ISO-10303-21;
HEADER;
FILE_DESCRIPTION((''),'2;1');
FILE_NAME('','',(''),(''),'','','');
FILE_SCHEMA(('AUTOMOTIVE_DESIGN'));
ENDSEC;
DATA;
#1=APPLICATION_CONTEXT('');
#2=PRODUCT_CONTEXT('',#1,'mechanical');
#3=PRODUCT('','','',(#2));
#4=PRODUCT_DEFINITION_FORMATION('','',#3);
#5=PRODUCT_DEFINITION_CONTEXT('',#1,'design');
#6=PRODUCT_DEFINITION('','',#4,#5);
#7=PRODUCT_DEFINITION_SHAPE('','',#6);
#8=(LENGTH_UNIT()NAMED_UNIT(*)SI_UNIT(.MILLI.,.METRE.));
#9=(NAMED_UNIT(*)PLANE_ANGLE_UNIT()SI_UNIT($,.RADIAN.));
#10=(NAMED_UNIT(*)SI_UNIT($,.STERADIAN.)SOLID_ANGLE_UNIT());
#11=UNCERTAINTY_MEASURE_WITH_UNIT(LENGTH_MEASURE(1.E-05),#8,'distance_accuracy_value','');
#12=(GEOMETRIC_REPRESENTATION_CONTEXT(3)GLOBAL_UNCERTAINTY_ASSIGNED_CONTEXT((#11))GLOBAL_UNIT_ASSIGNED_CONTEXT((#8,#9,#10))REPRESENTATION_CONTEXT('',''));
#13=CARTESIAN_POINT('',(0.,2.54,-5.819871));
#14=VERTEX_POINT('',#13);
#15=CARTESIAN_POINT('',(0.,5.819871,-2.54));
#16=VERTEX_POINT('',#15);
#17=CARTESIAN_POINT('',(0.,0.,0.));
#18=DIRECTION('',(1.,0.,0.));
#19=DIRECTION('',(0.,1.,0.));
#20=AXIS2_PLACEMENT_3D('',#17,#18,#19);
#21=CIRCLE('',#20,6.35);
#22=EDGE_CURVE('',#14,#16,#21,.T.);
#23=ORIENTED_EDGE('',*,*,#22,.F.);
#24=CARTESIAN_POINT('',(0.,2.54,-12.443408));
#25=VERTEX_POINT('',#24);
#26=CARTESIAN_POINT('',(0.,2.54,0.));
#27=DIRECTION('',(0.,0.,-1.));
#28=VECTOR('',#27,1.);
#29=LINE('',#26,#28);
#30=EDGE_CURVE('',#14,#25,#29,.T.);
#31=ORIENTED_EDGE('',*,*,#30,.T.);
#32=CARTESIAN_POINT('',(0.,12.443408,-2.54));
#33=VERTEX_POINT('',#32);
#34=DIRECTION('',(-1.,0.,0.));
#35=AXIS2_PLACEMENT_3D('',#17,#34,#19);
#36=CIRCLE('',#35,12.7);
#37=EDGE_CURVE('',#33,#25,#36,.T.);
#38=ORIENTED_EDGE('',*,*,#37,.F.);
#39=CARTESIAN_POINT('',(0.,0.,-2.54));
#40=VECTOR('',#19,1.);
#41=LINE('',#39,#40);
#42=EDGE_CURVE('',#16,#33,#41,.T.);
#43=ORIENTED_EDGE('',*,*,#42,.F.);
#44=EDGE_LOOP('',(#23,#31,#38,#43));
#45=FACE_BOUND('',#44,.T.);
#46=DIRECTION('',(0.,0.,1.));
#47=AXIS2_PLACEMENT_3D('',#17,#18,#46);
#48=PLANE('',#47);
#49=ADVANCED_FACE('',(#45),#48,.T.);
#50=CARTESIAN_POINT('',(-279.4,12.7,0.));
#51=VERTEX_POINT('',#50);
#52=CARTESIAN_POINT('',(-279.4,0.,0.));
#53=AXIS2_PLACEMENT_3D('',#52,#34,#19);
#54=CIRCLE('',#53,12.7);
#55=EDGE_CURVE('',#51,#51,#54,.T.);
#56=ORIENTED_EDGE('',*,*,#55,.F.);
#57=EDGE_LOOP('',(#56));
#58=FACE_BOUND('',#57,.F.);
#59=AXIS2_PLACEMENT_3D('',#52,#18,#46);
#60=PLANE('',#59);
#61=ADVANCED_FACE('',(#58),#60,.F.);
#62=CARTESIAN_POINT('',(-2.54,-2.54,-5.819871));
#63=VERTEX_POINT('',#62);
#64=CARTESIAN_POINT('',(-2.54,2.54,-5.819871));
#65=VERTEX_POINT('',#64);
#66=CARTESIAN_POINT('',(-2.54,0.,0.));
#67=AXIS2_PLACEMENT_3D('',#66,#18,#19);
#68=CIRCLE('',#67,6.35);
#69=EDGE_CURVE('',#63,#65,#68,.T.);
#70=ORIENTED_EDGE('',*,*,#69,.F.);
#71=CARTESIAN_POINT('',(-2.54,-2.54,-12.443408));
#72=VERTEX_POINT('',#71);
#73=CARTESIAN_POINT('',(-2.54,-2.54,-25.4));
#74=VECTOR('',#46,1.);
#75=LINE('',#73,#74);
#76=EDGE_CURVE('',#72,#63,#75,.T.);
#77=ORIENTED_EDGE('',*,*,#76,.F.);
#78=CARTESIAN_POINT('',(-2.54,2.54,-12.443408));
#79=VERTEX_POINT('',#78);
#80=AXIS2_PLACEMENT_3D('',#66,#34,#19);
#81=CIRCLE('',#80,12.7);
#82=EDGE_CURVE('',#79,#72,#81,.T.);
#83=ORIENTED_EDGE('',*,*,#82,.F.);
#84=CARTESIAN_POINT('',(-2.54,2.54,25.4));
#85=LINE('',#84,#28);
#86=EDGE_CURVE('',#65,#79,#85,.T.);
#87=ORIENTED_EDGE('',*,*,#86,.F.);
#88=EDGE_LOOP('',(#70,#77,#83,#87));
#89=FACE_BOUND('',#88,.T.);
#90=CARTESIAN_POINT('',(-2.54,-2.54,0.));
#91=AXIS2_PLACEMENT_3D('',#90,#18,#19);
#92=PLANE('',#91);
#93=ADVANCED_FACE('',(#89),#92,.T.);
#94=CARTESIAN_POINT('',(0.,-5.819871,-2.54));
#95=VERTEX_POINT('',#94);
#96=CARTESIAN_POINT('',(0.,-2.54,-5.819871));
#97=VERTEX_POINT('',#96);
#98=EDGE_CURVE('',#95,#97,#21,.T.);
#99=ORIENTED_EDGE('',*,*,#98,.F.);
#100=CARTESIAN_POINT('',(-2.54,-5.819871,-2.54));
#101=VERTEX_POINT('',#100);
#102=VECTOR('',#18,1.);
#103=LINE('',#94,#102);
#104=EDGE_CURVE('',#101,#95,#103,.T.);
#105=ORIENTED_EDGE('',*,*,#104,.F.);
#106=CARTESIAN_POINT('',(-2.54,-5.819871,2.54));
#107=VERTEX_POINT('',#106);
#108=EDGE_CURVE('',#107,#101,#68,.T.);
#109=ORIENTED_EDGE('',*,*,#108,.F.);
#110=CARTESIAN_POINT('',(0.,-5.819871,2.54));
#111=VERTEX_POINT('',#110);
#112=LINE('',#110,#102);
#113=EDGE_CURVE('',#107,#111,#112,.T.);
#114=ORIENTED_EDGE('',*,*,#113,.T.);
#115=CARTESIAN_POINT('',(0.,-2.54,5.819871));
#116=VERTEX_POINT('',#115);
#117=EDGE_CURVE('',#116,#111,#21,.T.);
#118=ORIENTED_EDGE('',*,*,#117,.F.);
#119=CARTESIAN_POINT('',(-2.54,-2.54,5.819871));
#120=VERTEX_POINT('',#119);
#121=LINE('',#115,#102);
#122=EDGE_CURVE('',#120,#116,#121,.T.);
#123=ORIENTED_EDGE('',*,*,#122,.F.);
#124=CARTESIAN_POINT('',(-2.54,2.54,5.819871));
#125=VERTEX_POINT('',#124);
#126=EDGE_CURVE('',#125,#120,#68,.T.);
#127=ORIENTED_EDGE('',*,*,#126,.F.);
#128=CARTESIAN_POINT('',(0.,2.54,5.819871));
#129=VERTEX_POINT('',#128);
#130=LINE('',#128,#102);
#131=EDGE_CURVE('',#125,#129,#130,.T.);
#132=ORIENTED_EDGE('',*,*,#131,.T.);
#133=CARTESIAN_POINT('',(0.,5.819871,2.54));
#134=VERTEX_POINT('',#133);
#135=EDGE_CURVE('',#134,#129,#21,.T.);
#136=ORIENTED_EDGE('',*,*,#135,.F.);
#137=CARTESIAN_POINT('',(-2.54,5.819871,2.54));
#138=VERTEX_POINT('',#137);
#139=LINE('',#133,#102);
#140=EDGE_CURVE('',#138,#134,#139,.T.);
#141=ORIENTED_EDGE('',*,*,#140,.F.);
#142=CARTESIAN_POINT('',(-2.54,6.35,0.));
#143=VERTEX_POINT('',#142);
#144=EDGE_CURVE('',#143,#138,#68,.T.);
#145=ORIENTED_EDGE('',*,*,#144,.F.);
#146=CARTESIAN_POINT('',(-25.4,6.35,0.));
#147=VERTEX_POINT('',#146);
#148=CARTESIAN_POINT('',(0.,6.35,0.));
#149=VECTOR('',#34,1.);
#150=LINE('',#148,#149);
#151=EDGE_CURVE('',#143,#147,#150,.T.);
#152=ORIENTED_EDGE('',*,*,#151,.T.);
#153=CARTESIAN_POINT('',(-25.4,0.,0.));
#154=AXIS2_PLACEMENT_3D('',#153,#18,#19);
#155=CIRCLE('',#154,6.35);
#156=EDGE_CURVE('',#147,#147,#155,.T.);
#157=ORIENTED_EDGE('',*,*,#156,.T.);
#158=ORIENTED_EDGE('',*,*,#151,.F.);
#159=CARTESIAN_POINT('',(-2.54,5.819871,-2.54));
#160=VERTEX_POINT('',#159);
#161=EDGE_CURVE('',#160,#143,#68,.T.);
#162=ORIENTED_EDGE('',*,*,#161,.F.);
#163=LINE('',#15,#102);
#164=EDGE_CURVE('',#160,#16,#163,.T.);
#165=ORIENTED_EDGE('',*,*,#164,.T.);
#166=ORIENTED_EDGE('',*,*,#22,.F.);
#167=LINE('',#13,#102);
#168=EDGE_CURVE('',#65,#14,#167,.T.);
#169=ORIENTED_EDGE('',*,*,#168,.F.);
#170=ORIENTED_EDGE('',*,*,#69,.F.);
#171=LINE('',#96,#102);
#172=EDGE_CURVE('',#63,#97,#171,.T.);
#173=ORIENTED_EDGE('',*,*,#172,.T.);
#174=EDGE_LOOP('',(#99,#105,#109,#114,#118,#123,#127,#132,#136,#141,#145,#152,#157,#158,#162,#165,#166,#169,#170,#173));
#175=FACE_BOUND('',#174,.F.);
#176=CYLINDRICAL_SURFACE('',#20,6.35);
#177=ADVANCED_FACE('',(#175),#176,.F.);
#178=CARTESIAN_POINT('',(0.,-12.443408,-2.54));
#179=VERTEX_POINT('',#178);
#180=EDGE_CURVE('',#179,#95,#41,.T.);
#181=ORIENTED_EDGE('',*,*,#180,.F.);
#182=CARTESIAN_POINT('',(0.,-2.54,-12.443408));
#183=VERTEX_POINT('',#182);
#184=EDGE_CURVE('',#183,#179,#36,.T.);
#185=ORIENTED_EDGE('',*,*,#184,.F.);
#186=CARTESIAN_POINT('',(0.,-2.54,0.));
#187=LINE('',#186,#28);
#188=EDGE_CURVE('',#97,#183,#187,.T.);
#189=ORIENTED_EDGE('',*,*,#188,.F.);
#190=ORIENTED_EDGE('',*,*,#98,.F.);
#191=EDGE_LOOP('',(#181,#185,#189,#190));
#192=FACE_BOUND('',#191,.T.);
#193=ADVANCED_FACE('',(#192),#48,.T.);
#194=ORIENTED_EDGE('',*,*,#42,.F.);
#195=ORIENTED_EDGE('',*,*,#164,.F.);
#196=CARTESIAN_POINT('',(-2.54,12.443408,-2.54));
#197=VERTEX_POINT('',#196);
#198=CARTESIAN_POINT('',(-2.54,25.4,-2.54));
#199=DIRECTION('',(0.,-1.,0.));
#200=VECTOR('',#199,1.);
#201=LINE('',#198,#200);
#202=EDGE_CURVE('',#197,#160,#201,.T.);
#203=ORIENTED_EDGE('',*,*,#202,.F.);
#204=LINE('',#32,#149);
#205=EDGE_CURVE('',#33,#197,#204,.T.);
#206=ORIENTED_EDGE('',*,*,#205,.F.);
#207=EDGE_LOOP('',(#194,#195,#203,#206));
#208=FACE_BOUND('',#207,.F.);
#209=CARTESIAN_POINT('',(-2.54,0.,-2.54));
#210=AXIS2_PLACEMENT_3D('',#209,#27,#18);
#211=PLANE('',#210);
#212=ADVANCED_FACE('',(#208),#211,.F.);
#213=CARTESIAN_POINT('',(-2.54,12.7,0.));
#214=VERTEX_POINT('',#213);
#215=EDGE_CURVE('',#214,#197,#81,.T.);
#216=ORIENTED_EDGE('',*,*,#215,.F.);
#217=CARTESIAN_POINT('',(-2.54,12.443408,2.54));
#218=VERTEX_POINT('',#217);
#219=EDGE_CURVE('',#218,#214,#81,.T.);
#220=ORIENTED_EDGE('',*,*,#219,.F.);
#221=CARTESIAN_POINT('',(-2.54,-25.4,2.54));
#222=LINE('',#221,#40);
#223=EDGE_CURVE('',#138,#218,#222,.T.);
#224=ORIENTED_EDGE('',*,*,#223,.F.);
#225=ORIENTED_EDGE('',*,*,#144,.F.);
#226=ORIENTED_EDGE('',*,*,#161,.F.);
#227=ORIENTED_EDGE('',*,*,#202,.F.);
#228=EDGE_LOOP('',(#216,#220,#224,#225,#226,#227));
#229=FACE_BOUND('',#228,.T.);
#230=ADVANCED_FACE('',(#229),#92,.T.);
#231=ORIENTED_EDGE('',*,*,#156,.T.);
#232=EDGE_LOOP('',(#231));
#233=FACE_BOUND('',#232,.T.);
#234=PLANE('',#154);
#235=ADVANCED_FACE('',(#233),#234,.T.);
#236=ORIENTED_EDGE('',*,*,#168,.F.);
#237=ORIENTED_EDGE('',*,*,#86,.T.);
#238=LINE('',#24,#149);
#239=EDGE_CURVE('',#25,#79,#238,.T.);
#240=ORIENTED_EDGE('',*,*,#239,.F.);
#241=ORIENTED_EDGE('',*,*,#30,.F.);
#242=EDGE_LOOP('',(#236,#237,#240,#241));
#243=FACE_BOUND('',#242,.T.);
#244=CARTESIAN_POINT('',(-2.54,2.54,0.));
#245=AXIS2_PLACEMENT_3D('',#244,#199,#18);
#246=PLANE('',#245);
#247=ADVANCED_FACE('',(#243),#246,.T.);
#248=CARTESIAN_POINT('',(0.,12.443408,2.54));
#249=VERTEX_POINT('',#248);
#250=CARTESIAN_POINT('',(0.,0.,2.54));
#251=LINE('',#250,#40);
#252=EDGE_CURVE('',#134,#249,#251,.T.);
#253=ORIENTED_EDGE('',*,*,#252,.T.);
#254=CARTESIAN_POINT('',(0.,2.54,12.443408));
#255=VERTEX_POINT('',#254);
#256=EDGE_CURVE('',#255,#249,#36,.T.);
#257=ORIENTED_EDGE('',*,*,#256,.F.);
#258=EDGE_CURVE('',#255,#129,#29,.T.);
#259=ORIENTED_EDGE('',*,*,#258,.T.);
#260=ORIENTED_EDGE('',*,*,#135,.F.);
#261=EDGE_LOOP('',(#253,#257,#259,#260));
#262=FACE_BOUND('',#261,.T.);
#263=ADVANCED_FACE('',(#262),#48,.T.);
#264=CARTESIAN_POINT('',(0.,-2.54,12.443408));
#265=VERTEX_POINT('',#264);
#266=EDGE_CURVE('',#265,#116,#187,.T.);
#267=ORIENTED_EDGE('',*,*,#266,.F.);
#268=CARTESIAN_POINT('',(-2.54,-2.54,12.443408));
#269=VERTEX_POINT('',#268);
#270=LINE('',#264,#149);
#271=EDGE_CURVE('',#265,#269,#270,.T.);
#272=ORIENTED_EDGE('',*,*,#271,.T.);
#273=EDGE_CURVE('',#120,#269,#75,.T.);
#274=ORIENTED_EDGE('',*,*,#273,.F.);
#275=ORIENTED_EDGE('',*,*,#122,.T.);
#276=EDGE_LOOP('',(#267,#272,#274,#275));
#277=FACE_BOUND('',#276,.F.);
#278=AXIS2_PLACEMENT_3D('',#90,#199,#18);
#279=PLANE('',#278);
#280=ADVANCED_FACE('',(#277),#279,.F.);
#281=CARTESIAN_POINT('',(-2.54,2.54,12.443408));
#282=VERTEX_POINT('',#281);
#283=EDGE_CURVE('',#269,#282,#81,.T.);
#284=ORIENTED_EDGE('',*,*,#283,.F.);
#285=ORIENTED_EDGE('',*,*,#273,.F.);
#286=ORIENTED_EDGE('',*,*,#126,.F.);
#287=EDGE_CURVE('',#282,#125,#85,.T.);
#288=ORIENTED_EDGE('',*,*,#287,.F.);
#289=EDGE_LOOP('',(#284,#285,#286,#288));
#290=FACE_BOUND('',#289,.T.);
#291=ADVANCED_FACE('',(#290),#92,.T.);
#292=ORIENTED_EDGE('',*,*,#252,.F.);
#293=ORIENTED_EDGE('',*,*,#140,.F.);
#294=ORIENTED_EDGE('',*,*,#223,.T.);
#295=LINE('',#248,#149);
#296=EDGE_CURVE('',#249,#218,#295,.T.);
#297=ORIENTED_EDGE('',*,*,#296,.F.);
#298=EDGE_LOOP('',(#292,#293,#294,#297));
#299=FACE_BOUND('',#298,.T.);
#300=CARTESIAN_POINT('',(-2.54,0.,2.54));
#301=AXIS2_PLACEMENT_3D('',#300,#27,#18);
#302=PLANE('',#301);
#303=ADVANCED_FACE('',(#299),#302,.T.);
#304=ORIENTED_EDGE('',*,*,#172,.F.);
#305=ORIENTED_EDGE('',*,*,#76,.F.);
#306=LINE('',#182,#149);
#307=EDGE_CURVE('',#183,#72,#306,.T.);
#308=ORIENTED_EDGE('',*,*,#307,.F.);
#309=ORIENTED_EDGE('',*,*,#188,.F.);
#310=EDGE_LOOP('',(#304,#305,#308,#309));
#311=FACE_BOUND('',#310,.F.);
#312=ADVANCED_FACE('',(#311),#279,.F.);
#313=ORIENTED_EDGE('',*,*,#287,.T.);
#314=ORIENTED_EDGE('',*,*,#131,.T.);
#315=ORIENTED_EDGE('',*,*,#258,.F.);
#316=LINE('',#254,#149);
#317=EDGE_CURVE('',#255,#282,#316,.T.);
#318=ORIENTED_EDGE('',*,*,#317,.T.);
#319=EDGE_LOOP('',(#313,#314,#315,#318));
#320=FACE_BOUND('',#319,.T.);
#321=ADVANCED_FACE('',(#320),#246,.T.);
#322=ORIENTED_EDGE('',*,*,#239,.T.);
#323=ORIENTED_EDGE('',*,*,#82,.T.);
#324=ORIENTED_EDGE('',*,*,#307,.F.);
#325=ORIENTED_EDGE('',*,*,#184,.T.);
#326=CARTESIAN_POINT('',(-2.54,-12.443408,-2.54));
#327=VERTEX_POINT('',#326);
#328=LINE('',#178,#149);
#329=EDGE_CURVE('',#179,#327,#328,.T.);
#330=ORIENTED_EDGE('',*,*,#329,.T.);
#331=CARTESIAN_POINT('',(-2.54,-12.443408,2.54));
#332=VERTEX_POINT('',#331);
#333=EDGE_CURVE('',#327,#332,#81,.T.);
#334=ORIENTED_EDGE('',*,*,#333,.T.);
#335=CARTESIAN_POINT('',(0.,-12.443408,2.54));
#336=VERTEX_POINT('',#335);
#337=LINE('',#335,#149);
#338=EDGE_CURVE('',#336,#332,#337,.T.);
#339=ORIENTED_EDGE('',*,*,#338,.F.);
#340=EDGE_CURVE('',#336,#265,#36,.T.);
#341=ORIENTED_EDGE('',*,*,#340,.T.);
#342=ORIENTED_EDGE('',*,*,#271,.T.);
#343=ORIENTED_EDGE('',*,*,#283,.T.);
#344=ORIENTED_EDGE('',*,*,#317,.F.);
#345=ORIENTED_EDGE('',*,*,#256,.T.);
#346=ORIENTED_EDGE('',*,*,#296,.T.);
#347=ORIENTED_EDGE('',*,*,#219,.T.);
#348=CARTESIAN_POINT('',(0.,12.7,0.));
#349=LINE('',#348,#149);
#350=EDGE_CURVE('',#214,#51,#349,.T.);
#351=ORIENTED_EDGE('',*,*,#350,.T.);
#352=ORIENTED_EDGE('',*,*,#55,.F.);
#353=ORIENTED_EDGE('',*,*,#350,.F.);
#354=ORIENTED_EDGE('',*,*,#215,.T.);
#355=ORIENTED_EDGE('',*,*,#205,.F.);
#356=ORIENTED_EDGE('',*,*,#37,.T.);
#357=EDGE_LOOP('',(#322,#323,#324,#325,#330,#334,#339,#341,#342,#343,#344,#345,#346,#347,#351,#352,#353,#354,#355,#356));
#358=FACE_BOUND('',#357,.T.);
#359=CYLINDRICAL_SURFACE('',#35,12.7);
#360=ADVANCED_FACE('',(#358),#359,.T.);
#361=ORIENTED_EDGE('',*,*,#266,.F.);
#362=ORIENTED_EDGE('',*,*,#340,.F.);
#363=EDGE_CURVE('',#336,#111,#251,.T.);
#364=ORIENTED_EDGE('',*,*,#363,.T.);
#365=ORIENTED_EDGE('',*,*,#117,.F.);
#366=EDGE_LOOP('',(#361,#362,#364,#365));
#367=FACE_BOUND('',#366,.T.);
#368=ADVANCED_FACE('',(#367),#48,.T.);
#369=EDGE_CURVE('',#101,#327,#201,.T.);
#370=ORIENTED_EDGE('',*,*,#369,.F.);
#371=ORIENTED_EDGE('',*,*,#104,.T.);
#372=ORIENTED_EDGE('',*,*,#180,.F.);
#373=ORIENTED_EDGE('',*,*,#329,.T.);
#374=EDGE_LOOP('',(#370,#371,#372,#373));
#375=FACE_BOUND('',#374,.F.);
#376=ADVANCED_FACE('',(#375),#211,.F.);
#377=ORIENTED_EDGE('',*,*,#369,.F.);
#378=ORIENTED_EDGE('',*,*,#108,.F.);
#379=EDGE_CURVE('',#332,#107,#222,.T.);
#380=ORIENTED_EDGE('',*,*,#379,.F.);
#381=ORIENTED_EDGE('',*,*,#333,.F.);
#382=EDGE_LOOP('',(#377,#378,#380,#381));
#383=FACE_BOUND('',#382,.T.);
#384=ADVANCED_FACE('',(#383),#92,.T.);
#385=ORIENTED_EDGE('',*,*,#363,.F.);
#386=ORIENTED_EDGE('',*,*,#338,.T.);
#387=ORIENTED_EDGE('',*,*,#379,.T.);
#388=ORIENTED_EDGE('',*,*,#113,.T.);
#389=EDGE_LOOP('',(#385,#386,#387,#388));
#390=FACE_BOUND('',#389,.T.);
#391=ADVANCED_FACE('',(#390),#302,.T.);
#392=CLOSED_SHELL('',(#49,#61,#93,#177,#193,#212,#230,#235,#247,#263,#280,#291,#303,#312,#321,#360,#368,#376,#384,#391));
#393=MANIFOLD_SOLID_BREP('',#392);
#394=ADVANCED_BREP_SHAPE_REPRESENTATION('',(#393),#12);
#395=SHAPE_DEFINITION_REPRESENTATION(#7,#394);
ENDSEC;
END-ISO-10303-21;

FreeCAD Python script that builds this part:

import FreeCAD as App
import Part
import Sketcher

V = App.Vector
Q = App.Units.Quantity

doc = App.newDocument("Part")
body = doc.addObject("PartDesign::Body", "Body")

sketch1 = body.newObject("Sketcher::SketchObject", "Sketch")
sketch1.AttachmentSupport = (doc.getObject("YZ_Plane"), [""])
sketch1.MapMode = "FlatFace"
sketch1.addGeometry(Part.Circle(V(0, 0, 0), V(0, 0, 1), 13), False)
sketch1.addConstraint([
    Sketcher.Constraint("Coincident", 0, 3, -1, 1),
    Sketcher.Constraint("Diameter", 0, Q("1 in")),
])

sketch2 = body.newObject("Sketcher::SketchObject", "Sketch001")
sketch2.AttachmentSupport = (doc.getObject("XY_Plane"), [""])
sketch2.MapMode = "FlatFace"
sketch2.addGeometry(Part.LineSegment(V(0, 0, 0), V(-279, 0, 0)), False)
sketch2.addConstraint([
    Sketcher.Constraint("Horizontal", 0),
    Sketcher.Constraint("Coincident", 0, 1, -1, 1),
    Sketcher.Constraint("DistanceX", 0, 2, 0, 1, Q("11 in")),
])
doc.recompute()

additivepipe = body.newObject("PartDesign::AdditivePipe", "AdditivePipe")
additivepipe.Profile = sketch1
additivepipe.Spine = (sketch2, ["Edge1"])

sketch3 = body.newObject("Sketcher::SketchObject", "Sketch002")
sketch3.AttachmentSupport = (doc.getObject("XY_Plane"), [""])
sketch3.MapMode = "FlatFace"
sketch3.addGeometry([
    Part.LineSegment(V(-3, 3, 0), V(-3, -3, 0)),
    Part.LineSegment(V(-3, -3, 0), V(3, -3, 0)),
    Part.LineSegment(V(3, -3, 0), V(3, 3, 0)),
    Part.LineSegment(V(3, 3, 0), V(-3, 3, 0)),
], False)
sketch3.addConstraint([
    Sketcher.Constraint("Coincident", 0, 2, 1, 1),
    Sketcher.Constraint("Coincident", 1, 2, 2, 1),
    Sketcher.Constraint("Coincident", 2, 2, 3, 1),
    Sketcher.Constraint("Coincident", 3, 2, 0, 1),
    Sketcher.Constraint("Vertical", 0),
    Sketcher.Constraint("Horizontal", 1),
    Sketcher.Constraint("Vertical", 2),
    Sketcher.Constraint("Horizontal", 3),
    Sketcher.Constraint("Symmetric", 0, 2, 2, 2, -1, 1),
    Sketcher.Constraint("Equal", 3, 0),
    Sketcher.Constraint("DistanceX", 1, 1, 1, 2, Q("0.2 in")),
])
pocket1 = body.newObject("PartDesign::Pocket", "Pocket")
pocket1.Profile = sketch3
pocket1.Length = Q("2 in")
pocket1.Midplane = True

sketch4 = body.newObject("Sketcher::SketchObject", "Sketch003")
sketch4.AttachmentSupport = (doc.getObject("XZ_Plane"), [""])
sketch4.MapMode = "FlatFace"
sketch4.addGeometry([
    Part.LineSegment(V(-3, 3, 0), V(-3, -3, 0)),
    Part.LineSegment(V(-3, -3, 0), V(3, -3, 0)),
    Part.LineSegment(V(3, -3, 0), V(3, 3, 0)),
    Part.LineSegment(V(3, 3, 0), V(-3, 3, 0)),
], False)
sketch4.addConstraint([
    Sketcher.Constraint("Coincident", 0, 2, 1, 1),
    Sketcher.Constraint("Coincident", 1, 2, 2, 1),
    Sketcher.Constraint("Coincident", 2, 2, 3, 1),
    Sketcher.Constraint("Coincident", 3, 2, 0, 1),
    Sketcher.Constraint("Vertical", 0),
    Sketcher.Constraint("Horizontal", 1),
    Sketcher.Constraint("Vertical", 2),
    Sketcher.Constraint("Horizontal", 3),
    Sketcher.Constraint("Symmetric", 0, 2, 2, 2, -1, 1),
    Sketcher.Constraint("Equal", 3, 0),
    Sketcher.Constraint("DistanceX", 1, 1, 1, 2, Q("0.2 in")),
])
pocket2 = body.newObject("PartDesign::Pocket", "Pocket001")
pocket2.Profile = sketch4
pocket2.Length = Q("2 in")
pocket2.Midplane = True

sketch5 = body.newObject("Sketcher::SketchObject", "Sketch004")
sketch5.AttachmentSupport = (doc.getObject("YZ_Plane"), [""])
sketch5.MapMode = "FlatFace"
sketch5.addGeometry(Part.Circle(V(0, 0, 0), V(0, 0, 1), 6), False)
sketch5.addConstraint([
    Sketcher.Constraint("Coincident", 0, 3, -1, 1),
    Sketcher.Constraint("Diameter", 0, Q("0.5 in")),
])
pocket3 = body.newObject("PartDesign::Pocket", "Pocket002")
pocket3.Profile = sketch5
pocket3.Length = Q("1 in")

doc.recompute()
